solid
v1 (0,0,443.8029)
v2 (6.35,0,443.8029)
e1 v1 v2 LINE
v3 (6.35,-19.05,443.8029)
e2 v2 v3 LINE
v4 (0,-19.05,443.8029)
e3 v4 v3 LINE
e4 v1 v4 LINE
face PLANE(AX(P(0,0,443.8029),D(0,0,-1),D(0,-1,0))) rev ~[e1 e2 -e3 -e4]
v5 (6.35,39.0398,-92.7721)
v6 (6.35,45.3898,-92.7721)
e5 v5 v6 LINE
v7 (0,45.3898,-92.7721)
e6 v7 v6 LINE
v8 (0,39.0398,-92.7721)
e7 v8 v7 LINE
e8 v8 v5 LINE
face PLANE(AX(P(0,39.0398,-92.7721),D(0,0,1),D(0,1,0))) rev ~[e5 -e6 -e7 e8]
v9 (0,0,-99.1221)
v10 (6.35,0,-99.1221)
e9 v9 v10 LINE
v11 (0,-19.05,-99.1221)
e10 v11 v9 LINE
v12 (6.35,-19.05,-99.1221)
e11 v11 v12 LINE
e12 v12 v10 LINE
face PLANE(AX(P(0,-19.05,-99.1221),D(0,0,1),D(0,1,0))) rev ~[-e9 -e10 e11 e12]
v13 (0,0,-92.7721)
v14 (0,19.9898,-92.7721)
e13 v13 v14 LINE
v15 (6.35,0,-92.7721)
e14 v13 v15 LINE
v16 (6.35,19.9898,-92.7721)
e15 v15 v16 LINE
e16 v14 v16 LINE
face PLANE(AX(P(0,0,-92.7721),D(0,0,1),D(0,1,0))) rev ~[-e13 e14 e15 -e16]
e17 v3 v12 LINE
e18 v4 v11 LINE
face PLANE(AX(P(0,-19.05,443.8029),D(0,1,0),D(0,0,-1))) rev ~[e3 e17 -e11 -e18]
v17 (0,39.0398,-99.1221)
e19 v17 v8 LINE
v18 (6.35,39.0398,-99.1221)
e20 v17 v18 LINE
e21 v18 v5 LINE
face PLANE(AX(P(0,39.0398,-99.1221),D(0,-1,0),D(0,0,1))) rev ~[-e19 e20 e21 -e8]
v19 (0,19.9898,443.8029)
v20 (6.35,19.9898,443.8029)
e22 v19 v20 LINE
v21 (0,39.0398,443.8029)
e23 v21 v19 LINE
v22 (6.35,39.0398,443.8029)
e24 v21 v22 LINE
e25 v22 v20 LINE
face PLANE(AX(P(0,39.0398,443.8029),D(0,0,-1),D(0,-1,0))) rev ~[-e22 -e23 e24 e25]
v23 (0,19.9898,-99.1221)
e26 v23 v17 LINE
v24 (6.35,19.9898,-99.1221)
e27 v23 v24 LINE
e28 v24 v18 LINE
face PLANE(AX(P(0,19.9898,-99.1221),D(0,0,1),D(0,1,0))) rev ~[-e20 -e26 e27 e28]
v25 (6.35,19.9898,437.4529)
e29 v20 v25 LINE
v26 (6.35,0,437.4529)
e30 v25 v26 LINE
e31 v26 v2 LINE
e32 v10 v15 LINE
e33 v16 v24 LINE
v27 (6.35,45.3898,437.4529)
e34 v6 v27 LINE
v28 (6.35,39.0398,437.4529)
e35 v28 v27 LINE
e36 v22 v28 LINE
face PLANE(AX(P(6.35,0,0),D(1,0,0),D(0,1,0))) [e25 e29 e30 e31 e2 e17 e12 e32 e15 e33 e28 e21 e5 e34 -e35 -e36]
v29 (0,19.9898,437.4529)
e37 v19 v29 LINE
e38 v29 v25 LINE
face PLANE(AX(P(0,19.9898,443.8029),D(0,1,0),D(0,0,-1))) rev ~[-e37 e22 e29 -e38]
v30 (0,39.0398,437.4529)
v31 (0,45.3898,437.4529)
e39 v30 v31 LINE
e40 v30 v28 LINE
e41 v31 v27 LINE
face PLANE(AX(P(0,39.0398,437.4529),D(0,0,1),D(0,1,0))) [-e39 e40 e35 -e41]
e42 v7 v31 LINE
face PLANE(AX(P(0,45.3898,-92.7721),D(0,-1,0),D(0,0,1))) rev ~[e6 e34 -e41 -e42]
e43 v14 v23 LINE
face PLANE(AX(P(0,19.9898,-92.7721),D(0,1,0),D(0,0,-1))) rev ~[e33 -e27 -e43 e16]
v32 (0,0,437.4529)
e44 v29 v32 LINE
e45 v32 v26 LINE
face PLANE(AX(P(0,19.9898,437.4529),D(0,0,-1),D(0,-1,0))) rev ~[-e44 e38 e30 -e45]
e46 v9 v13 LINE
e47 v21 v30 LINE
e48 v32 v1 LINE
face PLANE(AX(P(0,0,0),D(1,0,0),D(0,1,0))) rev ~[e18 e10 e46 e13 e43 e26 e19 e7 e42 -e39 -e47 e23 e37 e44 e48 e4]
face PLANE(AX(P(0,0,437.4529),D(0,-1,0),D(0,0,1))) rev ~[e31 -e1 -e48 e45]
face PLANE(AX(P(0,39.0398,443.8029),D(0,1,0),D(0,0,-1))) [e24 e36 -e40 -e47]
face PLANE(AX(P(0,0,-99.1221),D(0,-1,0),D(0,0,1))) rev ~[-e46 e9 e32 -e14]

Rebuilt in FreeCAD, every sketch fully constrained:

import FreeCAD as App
import Part
import Sketcher
Q = App.Units.Quantity

doc = App.newDocument("Part")
params = doc.addObject("Spreadsheet::Sheet", "Params")
for row, (alias, value) in enumerate([
    ("sketch1_width", "0.75 in"),
    ("sketch1_width2", "0.25 in"),
    ("sketch1_width3", "0.787 in"),
    ("sketch1_height", "21.375 in"),
    ("pad1_length", "0.25 in"),
], start=1):
    params.set(f"A{row}", alias)
    params.set(f"B{row}", "=" + value)
    params.setAlias(f"B{row}", alias)

body = doc.addObject("PartDesign::Body", "Body")

# Sketch on YZ plane
sketch1 = body.newObject("Sketcher::SketchObject", "Sketch")
sketch1.AttachmentSupport = (doc.getObject("YZ_Plane"), [""])
sketch1.MapMode = "FlatFace"
sketch1.addGeometry([
    Part.LineSegment(App.Vector(0, 444, 0), App.Vector(-19, 444, 0)),  # 0
    Part.LineSegment(App.Vector(-19, 444, 0), App.Vector(-19, -99, 0)),  # 1
    Part.LineSegment(App.Vector(-19, -99, 0), App.Vector(0, -99, 0)),  # 2
    Part.LineSegment(App.Vector(0, -99, 0), App.Vector(0, -93, 0)),  # 3
    Part.LineSegment(App.Vector(0, -93, 0), App.Vector(20, -93, 0)),  # 4
    Part.LineSegment(App.Vector(20, -93, 0), App.Vector(20, -99, 0)),  # 5
    Part.LineSegment(App.Vector(20, -99, 0), App.Vector(39, -99, 0)),  # 6
    Part.LineSegment(App.Vector(39, -99, 0), App.Vector(39, -93, 0)),  # 7
    Part.LineSegment(App.Vector(39, -93, 0), App.Vector(45, -93, 0)),  # 8
    Part.LineSegment(App.Vector(45, -93, 0), App.Vector(45, 437, 0)),  # 9
    Part.LineSegment(App.Vector(45, 437, 0), App.Vector(39, 437, 0)),  # 10
    Part.LineSegment(App.Vector(39, 437, 0), App.Vector(39, 444, 0)),  # 11
    Part.LineSegment(App.Vector(39, 444, 0), App.Vector(20, 444, 0)),  # 12
    Part.LineSegment(App.Vector(20, 444, 0), App.Vector(20, 437, 0)),  # 13
    Part.LineSegment(App.Vector(20, 437, 0), App.Vector(0, 437, 0)),  # 14
    Part.LineSegment(App.Vector(0, 437, 0), App.Vector(0, 444, 0)),  # 15
], False)
sketch1.addConstraint([
    Sketcher.Constraint("Coincident", 0, 2, 1, 1),
    Sketcher.Constraint("Coincident", 1, 2, 2, 1),
    Sketcher.Constraint("Coincident", 2, 2, 3, 1),
    Sketcher.Constraint("Coincident", 3, 2, 4, 1),
    Sketcher.Constraint("Coincident", 4, 2, 5, 1),
    Sketcher.Constraint("Coincident", 5, 2, 6, 1),
    Sketcher.Constraint("Coincident", 6, 2, 7, 1),
    Sketcher.Constraint("Coincident", 7, 2, 8, 1),
    Sketcher.Constraint("Coincident", 8, 2, 9, 1),
    Sketcher.Constraint("Coincident", 9, 2, 10, 1),
    Sketcher.Constraint("Coincident", 10, 2, 11, 1),
    Sketcher.Constraint("Coincident", 11, 2, 12, 1),
    Sketcher.Constraint("Coincident", 12, 2, 13, 1),
    Sketcher.Constraint("Coincident", 13, 2, 14, 1),
    Sketcher.Constraint("Coincident", 14, 2, 15, 1),
    Sketcher.Constraint("Coincident", 15, 2, 0, 1),
    Sketcher.Constraint("Horizontal", 0),
    Sketcher.Constraint("Vertical", 1),
    Sketcher.Constraint("Horizontal", 2),
    Sketcher.Constraint("Vertical", 3),
    Sketcher.Constraint("Horizontal", 4),
    Sketcher.Constraint("Vertical", 5),
    Sketcher.Constraint("Horizontal", 6),
    Sketcher.Constraint("Vertical", 7),
    Sketcher.Constraint("Horizontal", 8),
    Sketcher.Constraint("Vertical", 9),
    Sketcher.Constraint("Horizontal", 10),
    Sketcher.Constraint("Vertical", 11),
    Sketcher.Constraint("Horizontal", 12),
    Sketcher.Constraint("Vertical", 13),
    Sketcher.Constraint("Horizontal", 14),
    Sketcher.Constraint("Vertical", 15),
    Sketcher.Constraint("PointOnObject", 2, 2, -2),
    Sketcher.Constraint("PointOnObject", 14, 2, -2),
    Sketcher.Constraint("Horizontal", 2, 2, 5, 2),
    Sketcher.Constraint("Horizontal", 4, 2, 7, 2),
    Sketcher.Constraint("Horizontal", 0, 2, 11, 2),
    Sketcher.Constraint("Horizontal", 10, 2, 13, 2),
    Sketcher.Constraint("Vertical", 7, 2, 10, 2),
    Sketcher.Constraint("Vertical", 5, 2, 12, 2),
    Sketcher.Constraint("Equal", 2, 6),
    Sketcher.Constraint("Equal", 10, 3),
    Sketcher.Constraint("Equal", 7, 11),
    Sketcher.Constraint("DistanceX", 0, 2, 0, 1, Q("0.75 in")),
    Sketcher.Constraint("DistanceX", 8, 1, 8, 2, Q("0.25 in")),
    Sketcher.Constraint("DistanceX", 4, 1, 4, 2, Q("0.787 in")),
    Sketcher.Constraint("DistanceY", 1, 2, 1, 1, Q("21.375 in")),
    Sketcher.Constraint("DistanceY", -1, 1, 0, 2, Q("443.803 mm")),
])
sketch1.setExpression("Constraints[43]", "Params.sketch1_width")
sketch1.setExpression("Constraints[44]", "Params.sketch1_width2")
sketch1.setExpression("Constraints[45]", "Params.sketch1_width3")
sketch1.setExpression("Constraints[46]", "Params.sketch1_height")
pad1 = body.newObject("PartDesign::Pad", "Pad")
pad1.Profile = sketch1
pad1.setExpression("Length", "Params.pad1_length")

doc.recompute()
